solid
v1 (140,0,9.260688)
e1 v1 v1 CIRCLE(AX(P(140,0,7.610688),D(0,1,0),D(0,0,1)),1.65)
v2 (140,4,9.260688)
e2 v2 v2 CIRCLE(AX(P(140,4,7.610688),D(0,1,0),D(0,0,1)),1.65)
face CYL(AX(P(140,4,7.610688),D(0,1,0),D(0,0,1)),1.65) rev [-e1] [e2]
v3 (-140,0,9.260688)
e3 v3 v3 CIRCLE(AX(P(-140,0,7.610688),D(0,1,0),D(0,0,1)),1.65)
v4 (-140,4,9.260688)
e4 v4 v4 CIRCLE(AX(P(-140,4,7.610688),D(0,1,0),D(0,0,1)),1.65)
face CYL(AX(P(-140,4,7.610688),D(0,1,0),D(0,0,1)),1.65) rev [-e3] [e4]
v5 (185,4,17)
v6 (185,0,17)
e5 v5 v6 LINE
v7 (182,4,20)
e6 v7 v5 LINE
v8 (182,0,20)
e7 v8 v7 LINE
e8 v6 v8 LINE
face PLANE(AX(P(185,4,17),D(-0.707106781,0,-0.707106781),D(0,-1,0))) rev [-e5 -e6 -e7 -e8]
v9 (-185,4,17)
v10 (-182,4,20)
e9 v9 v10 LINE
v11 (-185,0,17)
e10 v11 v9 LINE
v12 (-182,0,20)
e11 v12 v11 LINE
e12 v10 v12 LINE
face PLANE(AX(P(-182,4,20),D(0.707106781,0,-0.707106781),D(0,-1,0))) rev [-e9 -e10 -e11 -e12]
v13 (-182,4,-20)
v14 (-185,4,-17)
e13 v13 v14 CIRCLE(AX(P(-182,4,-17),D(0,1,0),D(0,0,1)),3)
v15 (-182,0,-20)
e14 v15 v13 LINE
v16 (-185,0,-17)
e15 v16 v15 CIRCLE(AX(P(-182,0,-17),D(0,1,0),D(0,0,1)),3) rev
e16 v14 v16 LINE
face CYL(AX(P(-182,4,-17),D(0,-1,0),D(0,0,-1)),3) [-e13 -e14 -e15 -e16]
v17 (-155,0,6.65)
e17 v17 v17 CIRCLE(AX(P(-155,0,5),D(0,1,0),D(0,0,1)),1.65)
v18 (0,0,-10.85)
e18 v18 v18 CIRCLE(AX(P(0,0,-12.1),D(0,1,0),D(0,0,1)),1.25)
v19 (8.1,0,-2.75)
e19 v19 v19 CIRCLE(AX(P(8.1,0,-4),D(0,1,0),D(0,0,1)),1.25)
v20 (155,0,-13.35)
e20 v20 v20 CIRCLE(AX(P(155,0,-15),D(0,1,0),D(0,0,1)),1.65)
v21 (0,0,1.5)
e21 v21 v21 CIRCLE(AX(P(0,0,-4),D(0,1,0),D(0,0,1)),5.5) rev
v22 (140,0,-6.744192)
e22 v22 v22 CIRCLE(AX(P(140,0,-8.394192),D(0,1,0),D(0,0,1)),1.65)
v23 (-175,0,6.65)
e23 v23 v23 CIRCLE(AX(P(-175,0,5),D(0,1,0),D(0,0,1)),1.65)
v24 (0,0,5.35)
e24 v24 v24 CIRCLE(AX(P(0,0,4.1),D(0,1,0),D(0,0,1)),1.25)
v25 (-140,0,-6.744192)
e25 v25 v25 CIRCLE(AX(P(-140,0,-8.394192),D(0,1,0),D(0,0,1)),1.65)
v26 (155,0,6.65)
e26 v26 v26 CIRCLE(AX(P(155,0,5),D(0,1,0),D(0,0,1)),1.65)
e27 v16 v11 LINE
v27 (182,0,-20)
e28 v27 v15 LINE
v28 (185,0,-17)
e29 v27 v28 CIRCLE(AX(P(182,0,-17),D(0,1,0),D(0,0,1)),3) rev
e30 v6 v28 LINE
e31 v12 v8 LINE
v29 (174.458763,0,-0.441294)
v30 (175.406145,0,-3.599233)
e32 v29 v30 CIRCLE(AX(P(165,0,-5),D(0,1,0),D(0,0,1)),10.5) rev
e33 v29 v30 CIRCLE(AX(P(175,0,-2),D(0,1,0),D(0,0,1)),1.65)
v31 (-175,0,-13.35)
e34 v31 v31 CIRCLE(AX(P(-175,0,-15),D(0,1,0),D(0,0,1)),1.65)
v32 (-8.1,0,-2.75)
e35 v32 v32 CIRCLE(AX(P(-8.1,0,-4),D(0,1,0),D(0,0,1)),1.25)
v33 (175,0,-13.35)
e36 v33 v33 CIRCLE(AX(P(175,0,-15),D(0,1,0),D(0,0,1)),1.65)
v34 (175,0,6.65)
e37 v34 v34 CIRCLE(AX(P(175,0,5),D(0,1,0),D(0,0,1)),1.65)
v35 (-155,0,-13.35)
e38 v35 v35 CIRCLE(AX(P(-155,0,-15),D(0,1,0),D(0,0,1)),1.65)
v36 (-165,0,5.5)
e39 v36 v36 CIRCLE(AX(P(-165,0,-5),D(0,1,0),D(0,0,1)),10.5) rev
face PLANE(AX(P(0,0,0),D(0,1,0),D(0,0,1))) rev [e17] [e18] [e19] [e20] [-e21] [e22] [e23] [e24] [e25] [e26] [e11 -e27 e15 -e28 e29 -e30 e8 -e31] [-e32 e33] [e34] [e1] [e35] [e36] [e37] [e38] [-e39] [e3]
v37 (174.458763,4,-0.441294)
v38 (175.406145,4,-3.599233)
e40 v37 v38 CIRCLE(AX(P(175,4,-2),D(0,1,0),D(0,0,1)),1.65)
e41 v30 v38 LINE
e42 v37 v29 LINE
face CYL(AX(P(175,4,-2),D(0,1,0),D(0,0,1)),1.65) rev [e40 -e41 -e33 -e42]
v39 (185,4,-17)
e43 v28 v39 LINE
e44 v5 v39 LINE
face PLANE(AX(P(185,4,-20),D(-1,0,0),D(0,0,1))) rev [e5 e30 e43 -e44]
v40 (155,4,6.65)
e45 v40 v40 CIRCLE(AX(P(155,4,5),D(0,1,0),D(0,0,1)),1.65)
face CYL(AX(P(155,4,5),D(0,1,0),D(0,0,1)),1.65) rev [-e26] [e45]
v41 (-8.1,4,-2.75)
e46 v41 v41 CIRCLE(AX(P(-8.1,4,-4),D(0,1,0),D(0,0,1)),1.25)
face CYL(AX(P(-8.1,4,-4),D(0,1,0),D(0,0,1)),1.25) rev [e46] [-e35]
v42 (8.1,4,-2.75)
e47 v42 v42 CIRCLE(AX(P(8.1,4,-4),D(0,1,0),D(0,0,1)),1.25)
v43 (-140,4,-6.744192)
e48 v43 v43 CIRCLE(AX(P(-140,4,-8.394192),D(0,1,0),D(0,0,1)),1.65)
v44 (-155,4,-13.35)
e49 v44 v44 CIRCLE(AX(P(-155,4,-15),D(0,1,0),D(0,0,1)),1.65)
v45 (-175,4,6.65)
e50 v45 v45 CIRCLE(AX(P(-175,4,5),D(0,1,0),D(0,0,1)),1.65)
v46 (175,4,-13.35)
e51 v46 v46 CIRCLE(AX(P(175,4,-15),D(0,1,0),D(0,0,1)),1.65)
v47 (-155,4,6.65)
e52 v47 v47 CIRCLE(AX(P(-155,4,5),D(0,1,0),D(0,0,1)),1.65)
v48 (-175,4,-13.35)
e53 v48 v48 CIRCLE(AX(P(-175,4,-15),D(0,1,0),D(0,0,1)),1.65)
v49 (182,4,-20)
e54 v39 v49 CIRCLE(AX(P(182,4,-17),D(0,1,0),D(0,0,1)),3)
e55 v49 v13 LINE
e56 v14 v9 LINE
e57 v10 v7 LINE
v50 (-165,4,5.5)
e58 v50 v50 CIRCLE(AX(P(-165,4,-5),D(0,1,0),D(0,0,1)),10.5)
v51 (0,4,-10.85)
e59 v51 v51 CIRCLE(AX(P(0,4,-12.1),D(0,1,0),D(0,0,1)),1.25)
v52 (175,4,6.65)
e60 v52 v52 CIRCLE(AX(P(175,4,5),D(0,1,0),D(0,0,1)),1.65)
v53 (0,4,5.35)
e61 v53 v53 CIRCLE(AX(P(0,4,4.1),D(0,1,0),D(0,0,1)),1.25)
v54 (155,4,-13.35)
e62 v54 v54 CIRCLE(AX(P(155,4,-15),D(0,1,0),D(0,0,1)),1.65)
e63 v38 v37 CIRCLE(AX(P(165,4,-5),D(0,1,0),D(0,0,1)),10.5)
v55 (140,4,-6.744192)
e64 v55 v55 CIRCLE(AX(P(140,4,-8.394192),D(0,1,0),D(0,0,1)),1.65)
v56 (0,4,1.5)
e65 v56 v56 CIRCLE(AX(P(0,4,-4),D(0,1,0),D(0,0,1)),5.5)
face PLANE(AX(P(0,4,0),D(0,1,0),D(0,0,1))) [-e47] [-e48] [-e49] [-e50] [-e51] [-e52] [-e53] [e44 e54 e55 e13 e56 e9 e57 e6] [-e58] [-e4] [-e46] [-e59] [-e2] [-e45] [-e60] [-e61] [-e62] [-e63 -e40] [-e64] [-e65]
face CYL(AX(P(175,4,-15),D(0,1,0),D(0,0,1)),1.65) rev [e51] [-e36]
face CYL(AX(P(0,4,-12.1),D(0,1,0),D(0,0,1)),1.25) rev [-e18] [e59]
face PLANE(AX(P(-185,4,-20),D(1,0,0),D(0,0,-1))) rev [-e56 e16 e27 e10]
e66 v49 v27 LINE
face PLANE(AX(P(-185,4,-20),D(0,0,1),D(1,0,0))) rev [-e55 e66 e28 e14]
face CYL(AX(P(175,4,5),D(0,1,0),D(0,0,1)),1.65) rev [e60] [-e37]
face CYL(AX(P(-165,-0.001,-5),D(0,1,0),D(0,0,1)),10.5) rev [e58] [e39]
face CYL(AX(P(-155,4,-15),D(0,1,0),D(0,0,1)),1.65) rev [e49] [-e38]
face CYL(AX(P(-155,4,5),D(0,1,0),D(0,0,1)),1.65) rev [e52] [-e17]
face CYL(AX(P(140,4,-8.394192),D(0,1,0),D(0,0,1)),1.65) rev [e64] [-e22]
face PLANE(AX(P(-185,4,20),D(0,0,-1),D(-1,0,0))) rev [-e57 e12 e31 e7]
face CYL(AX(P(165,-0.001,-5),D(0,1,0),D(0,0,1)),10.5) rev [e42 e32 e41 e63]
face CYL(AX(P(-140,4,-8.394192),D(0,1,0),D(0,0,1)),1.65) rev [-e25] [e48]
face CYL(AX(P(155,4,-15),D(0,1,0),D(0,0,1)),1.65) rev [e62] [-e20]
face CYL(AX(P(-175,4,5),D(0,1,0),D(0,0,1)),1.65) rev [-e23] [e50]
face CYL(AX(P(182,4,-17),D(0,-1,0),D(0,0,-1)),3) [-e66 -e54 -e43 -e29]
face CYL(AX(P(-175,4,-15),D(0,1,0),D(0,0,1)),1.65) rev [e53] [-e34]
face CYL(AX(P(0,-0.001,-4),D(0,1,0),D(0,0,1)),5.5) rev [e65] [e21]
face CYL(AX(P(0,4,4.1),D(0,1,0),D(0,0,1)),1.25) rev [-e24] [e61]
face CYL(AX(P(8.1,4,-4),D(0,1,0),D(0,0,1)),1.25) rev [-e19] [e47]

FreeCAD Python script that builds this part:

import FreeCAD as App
import Part
import Sketcher
Q = App.Units.Quantity


def edges_at(feature, points):
    """Names of the edges that pass closest to the given points."""
    edges = feature.Shape.Edges
    near = lambda p: min(range(len(edges)), key=lambda i: edges[i].distToShape(Part.Vertex(*p))[0])
    return sorted({f"Edge{near(p) + 1}" for p in points})

doc = App.newDocument("Part")
body = doc.addObject("PartDesign::Body", "Body")

# Sketch on XZ plane
sketch1 = body.newObject("Sketcher::SketchObject", "Sketch")
sketch1.AttachmentSupport = (doc.getObject("XZ_Plane"), [""])
sketch1.MapMode = "FlatFace"
sketch1.addGeometry([
    Part.LineSegment(App.Vector(-185, -20, 0), App.Vector(-185, 20, 0)),
    Part.LineSegment(App.Vector(-185, 20, 0), App.Vector(185, 20, 0)),
    Part.LineSegment(App.Vector(185, 20, 0), App.Vector(185, -20, 0)),
    Part.LineSegment(App.Vector(185, -20, 0), App.Vector(-185, -20, 0)),
], False)
sketch1.addConstraint([
    Sketcher.Constraint("Coincident", 0, 2, 1, 1),
    Sketcher.Constraint("Coincident", 1, 2, 2, 1),
    Sketcher.Constraint("Coincident", 2, 2, 3, 1),
    Sketcher.Constraint("Coincident", 3, 2, 0, 1),
    Sketcher.Constraint("Vertical", 0),
    Sketcher.Constraint("Horizontal", 1),
    Sketcher.Constraint("Vertical", 2),
    Sketcher.Constraint("Horizontal", 3),
    Sketcher.Constraint("Symmetric", 0, 2, 2, 2, -1, 1),
    Sketcher.Constraint("DistanceX", 1, 1, 1, 2, Q("370 mm")),
    Sketcher.Constraint("DistanceY", 0, 1, 0, 2, Q("40 mm")),
])
pad1 = body.newObject("PartDesign::Pad", "Pad")
pad1.Profile = sketch1
pad1.Length = 4
pad1.Reversed = True

# Sketch on XZ plane
sketch2 = body.newObject("Sketcher::SketchObject", "Sketch001")
sketch2.AttachmentSupport = (doc.getObject("XZ_Plane"), [""])
sketch2.MapMode = "FlatFace"
sketch2.AttachmentOffset = App.Placement(App.Vector(0, 0, -4), App.Rotation())
sketch2.addGeometry(Part.Circle(App.Vector(165, -5, 0), App.Vector(0, 0, 1), 10), False)
sketch2.addConstraint([
    Sketcher.Constraint("Diameter", 0, Q("21 mm")),
    Sketcher.Constraint("DistanceX", -1, 1, 0, 3, Q("165 mm")),
    Sketcher.Constraint("DistanceY", 0, 3, -1, 1, Q("5 mm")),
])
pocket1 = body.newObject("PartDesign::Pocket", "Pocket")
pocket1.Profile = sketch2
pocket1.Type = "UpToFirst"
pocket1.Reversed = True

# Sketch on XZ plane
sketch3 = body.newObject("Sketcher::SketchObject", "Sketch002")
sketch3.AttachmentSupport = (doc.getObject("XZ_Plane"), [""])
sketch3.MapMode = "FlatFace"
sketch3.AttachmentOffset = App.Placement(App.Vector(0, 0, -4), App.Rotation())
sketch3.addGeometry(Part.Circle(App.Vector(-165, -5, 0), App.Vector(0, 0, 1), 10), False)
sketch3.addConstraint([
    Sketcher.Constraint("Diameter", 0, Q("21 mm")),
    Sketcher.Constraint("DistanceX", 0, 3, -1, 1, Q("165 mm")),
    Sketcher.Constraint("DistanceY", 0, 3, -1, 1, Q("5 mm")),
])
pocket2 = body.newObject("PartDesign::Pocket", "Pocket001")
pocket2.Profile = sketch3
pocket2.Type = "UpToFirst"
pocket2.Reversed = True

# Sketch on XZ plane
sketch4 = body.newObject("Sketcher::SketchObject", "Sketch003")
sketch4.AttachmentSupport = (doc.getObject("XZ_Plane"), [""])
sketch4.MapMode = "FlatFace"
sketch4.AttachmentOffset = App.Placement(App.Vector(0, 0, -4), App.Rotation())
sketch4.addGeometry(Part.Circle(App.Vector(0, -4, 0), App.Vector(0, 0, 1), 6), False)
sketch4.addConstraint([
    Sketcher.Constraint("PointOnObject", 0, 3, -2),
    Sketcher.Constraint("Diameter", 0, Q("11 mm")),
    Sketcher.Constraint("DistanceY", 0, 3, -1, 1, Q("4 mm")),
])
pocket3 = body.newObject("PartDesign::Pocket", "Pocket002")
pocket3.Profile = sketch4
pocket3.Type = "UpToFirst"
pocket3.Reversed = True

# Sketch on XZ plane
sketch5 = body.newObject("Sketcher::SketchObject", "Sketch004")
sketch5.AttachmentSupport = (doc.getObject("XZ_Plane"), [""])
sketch5.MapMode = "FlatFace"
sketch5.AttachmentOffset = App.Placement(App.Vector(0, 0, -4), App.Rotation())
sketch5.addGeometry([
    Part.Circle(App.Vector(175, -2, 0), App.Vector(0, 0, 1), 1.6),  # 0
    Part.Circle(App.Vector(155, -15, 0), App.Vector(0, 0, 1), 1.6),  # 1
    Part.Circle(App.Vector(175, -15, 0), App.Vector(0, 0, 1), 1.6),  # 2
    Part.Circle(App.Vector(155, 5, 0), App.Vector(0, 0, 1), 1.6),  # 3
    Part.Circle(App.Vector(175, 5, 0), App.Vector(0, 0, 1), 1.6),  # 4
    Part.Circle(App.Vector(-175, -15, 0), App.Vector(0, 0, 1), 1.6),  # 5
    Part.Circle(App.Vector(-155, -15, 0), App.Vector(0, 0, 1), 1.6),  # 6
    Part.Circle(App.Vector(-175, 5, 0), App.Vector(0, 0, 1), 1.6),  # 7
    Part.Circle(App.Vector(-155, 5, 0), App.Vector(0, 0, 1), 1.6),  # 8
    Part.Circle(App.Vector(-140, -8.4, 0), App.Vector(0, 0, 1), 1.6),  # 9
    Part.Circle(App.Vector(-140, 7.6, 0), App.Vector(0, 0, 1), 1.6),  # 10
    Part.Circle(App.Vector(140, -8.4, 0), App.Vector(0, 0, 1), 1.6),  # 11
    Part.Circle(App.Vector(140, 7.6, 0), App.Vector(0, 0, 1), 1.6),  # 12
], False)
sketch5.addConstraint([
    Sketcher.Constraint("Equal", 0, 1),
    Sketcher.Constraint("Equal", 1, 2),
    Sketcher.Constraint("Equal", 2, 3),
    Sketcher.Constraint("Equal", 3, 4),
    Sketcher.Constraint("Equal", 4, 5),
    Sketcher.Constraint("Equal", 5, 6),
    Sketcher.Constraint("Equal", 6, 7),
    Sketcher.Constraint("Equal", 7, 8),
    Sketcher.Constraint("Equal", 8, 9),
    Sketcher.Constraint("Equal", 9, 10),
    Sketcher.Constraint("Equal", 10, 11),
    Sketcher.Constraint("Equal", 11, 12),
    Sketcher.Constraint("Symmetric", 2, 3, 5, 3, -2),
    Sketcher.Constraint("Symmetric", 1, 3, 6, 3, -2),
    Sketcher.Constraint("Symmetric", 4, 3, 7, 3, -2),
    Sketcher.Constraint("Symmetric", 3, 3, 8, 3, -2),
    Sketcher.Constraint("Symmetric", 9, 3, 11, 3, -2),
    Sketcher.Constraint("Symmetric", 10, 3, 12, 3, -2),
    Sketcher.Constraint("Horizontal", 1, 3, 2, 3),
    Sketcher.Constraint("Horizontal", 3, 3, 4, 3),
    Sketcher.Constraint("Vertical", 0, 3, 2, 3),
    Sketcher.Constraint("Vertical", 1, 3, 3, 3),
    Sketcher.Constraint("Vertical", 2, 3, 4, 3),
    Sketcher.Constraint("Vertical", 9, 3, 10, 3),
    Sketcher.Constraint("Diameter", 0, Q("3.3 mm")),
    Sketcher.Constraint("DistanceX", -1, 1, 0, 3, Q("175 mm")),
    Sketcher.Constraint("DistanceY", 0, 3, -1, 1, Q("2 mm")),
    Sketcher.Constraint("DistanceX", -1, 1, 1, 3, Q("155 mm")),
    Sketcher.Constraint("DistanceY", 1, 3, -1, 1, Q("15 mm")),
    Sketcher.Constraint("DistanceY", -1, 1, 3, 3, Q("5 mm")),
    Sketcher.Constraint("DistanceX", 9, 3, -1, 1, Q("140 mm")),
    Sketcher.Constraint("DistanceY", 9, 3, -1, 1, Q("8.394192 mm")),
    Sketcher.Constraint("DistanceY", -1, 1, 10, 3, Q("7.610688 mm")),
])
doc.recompute()
hole = body.newObject("PartDesign::Hole", "Hole")
hole.Profile = sketch5
hole.ThreadType = "None"
hole.Diameter = 3.3
hole.DepthType = "Dimension"
hole.Depth = 4
hole.DrillPoint = "Flat"
hole.Reversed = True
doc.recompute()

chamfer = body.newObject("PartDesign::Chamfer", "Chamfer")
chamfer.Base = (hole, edges_at(hole, [(185, 2, 20), (-185, 2, 20)]))
chamfer.Size = 3
doc.recompute()

fillet = body.newObject("PartDesign::Fillet", "Fillet")
fillet.Base = (chamfer, edges_at(chamfer, [(-185, 2, -20), (185, 2, -20)]))
fillet.Radius = 3

# Sketch on XZ plane
sketch6 = body.newObject("Sketcher::SketchObject", "Sketch005")
sketch6.AttachmentSupport = (doc.getObject("XZ_Plane"), [""])
sketch6.MapMode = "FlatFace"
sketch6.AttachmentOffset = App.Placement(App.Vector(0, 0, -4), App.Rotation())
sketch6.addGeometry([
    Part.Circle(App.Vector(0, -12.1, 0), App.Vector(0, 0, 1), 1.2),
    Part.Circle(App.Vector(8.1, -4, 0), App.Vector(0, 0, 1), 1.2),
    Part.Circle(App.Vector(0, 4.1, 0), App.Vector(0, 0, 1), 1.2),
    Part.Circle(App.Vector(-8.1, -4, 0), App.Vector(0, 0, 1), 1.2),
], False)
sketch6.addConstraint([
    Sketcher.Constraint("Equal", 0, 1),
    Sketcher.Constraint("Equal", 1, 2),
    Sketcher.Constraint("Equal", 2, 3),
    Sketcher.Constraint("Symmetric", 1, 3, 3, 3, -2),
    Sketcher.Constraint("PointOnObject", 0, 3, -2),
    Sketcher.Constraint("PointOnObject", 2, 3, -2),
    Sketcher.Constraint("Diameter", 0, Q("2.5 mm")),
    Sketcher.Constraint("DistanceY", 1, 3, -1, 1, Q("4 mm")),
    Sketcher.Constraint("DistanceY", 0, 3, -1, 1, Q("12.1 mm")),
    Sketcher.Constraint("DistanceX", -1, 1, 1, 3, Q("8.1 mm")),
    Sketcher.Constraint("DistanceY", -1, 1, 2, 3, Q("4.1 mm")),
])
doc.recompute()
hole2 = body.newObject("PartDesign::Hole", "Hole001")
hole2.Profile = sketch6
hole2.ThreadType = "None"
hole2.Diameter = 2.5
hole2.DepthType = "ThroughAll"
hole2.Reversed = True

doc.recompute()
